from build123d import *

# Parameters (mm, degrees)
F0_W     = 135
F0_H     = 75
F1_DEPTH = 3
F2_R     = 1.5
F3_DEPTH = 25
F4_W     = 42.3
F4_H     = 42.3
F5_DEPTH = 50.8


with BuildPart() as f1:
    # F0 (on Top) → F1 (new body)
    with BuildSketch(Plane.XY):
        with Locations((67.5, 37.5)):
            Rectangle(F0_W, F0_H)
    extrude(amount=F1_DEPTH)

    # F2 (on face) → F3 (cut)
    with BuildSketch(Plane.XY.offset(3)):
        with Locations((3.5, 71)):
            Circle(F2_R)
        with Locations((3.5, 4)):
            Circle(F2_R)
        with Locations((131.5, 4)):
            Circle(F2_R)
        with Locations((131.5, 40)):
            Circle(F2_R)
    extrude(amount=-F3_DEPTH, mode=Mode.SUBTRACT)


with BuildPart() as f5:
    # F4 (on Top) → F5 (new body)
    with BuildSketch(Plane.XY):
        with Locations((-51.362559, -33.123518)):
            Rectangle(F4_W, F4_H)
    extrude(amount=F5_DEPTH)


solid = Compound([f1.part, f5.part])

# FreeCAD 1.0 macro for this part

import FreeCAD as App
import Part
import Sketcher
from FreeCAD import Vector


def add_polygon(sketch, points):
    """Adds a closed chain of lines whose ends are joined by coincident constraints."""
    first, n = sketch.GeometryCount, len(points)
    for a, b in zip(points, points[1:] + points[:1]):
        sketch.addGeometry(Part.LineSegment(App.Vector(*a, 0), App.Vector(*b, 0)), False)
    for i in range(n):
        sketch.addConstraint(Sketcher.Constraint("Coincident", first + i, 2, first + (i + 1) % n, 1))

doc = App.newDocument("Part")
body = doc.addObject("PartDesign::Body", "Body")

sketch1 = doc.addObject("Sketcher::SketchObject", "Sketch")
body.addObject(sketch1)
sketch1.AttachmentSupport = (doc.XY_Plane, [""])
sketch1.MapMode = "FlatFace"
add_polygon(sketch1, [(0, 75), (0, 0), (135, 0), (135, 75)])
sketch1.addConstraint(Sketcher.Constraint("Vertical", 0))
sketch1.addConstraint(Sketcher.Constraint("Horizontal", 1))
sketch1.addConstraint(Sketcher.Constraint("Vertical", 2))
sketch1.addConstraint(Sketcher.Constraint("Horizontal", 3))
sketch1.addConstraint(Sketcher.Constraint("Coincident", 0, 2, -1, 1))
sketch1.addConstraint(Sketcher.Constraint("DistanceX", 1, 1, 1, 2, 135.0))
sketch1.addConstraint(Sketcher.Constraint("DistanceY", 0, 2, 0, 1, 75.0))
pad1 = doc.addObject("PartDesign::Pad", "Pad")
body.addObject(pad1)
pad1.Profile = sketch1
pad1.Length = 3

sketch2 = doc.addObject("Sketcher::SketchObject", "Sketch001")
body.addObject(sketch2)
sketch2.AttachmentSupport = (doc.XY_Plane, [""])
sketch2.MapMode = "FlatFace"
sketch2.AttachmentOffset = App.Placement(Vector(0, 0, 3), App.Rotation())
sketch2.addGeometry(Part.Circle(Vector(3.5, 71, 0), Vector(0, 0, 1), 1.5), False)
sketch2.addGeometry(Part.Circle(Vector(3.5, 4, 0), Vector(0, 0, 1), 1.5), False)
sketch2.addGeometry(Part.Circle(Vector(131.5, 4, 0), Vector(0, 0, 1), 1.5), False)
sketch2.addGeometry(Part.Circle(Vector(131.5, 40, 0), Vector(0, 0, 1), 1.5), False)
sketch2.addConstraint(Sketcher.Constraint("Equal", 0, 1))
sketch2.addConstraint(Sketcher.Constraint("Equal", 1, 2))
sketch2.addConstraint(Sketcher.Constraint("Equal", 2, 3))
sketch2.addConstraint(Sketcher.Constraint("Horizontal", 1, 3, 2, 3))
sketch2.addConstraint(Sketcher.Constraint("Vertical", 0, 3, 1, 3))
sketch2.addConstraint(Sketcher.Constraint("Vertical", 2, 3, 3, 3))
sketch2.addConstraint(Sketcher.Constraint("Diameter", 0, 3.0))
sketch2.addConstraint(Sketcher.Constraint("DistanceY", -1, 1, 0, 3, 71.0))
sketch2.addConstraint(Sketcher.Constraint("DistanceY", -1, 1, 1, 3, 4.0))
sketch2.addConstraint(Sketcher.Constraint("DistanceY", -1, 1, 3, 3, 40.0))
sketch2.addConstraint(Sketcher.Constraint("DistanceX", 1, 3, 2, 3, 128.0))
sketch2.addConstraint(Sketcher.Constraint("DistanceX", -1, 1, 0, 3, 3.5))
pocket1 = doc.addObject("PartDesign::Pocket", "Pocket")
body.addObject(pocket1)
pocket1.Profile = sketch2
pocket1.Length = 25
body2 = doc.addObject("PartDesign::Body", "Body001")

sketch3 = doc.addObject("Sketcher::SketchObject", "Sketch002")
body2.addObject(sketch3)
sketch3.AttachmentSupport = (doc.getObject("XY_Plane001"), [""])
sketch3.MapMode = "FlatFace"
add_polygon(sketch3, [(-72.512559, -11.973518), (-72.512559, -54.273518), (-30.212559, -54.273518), (-30.212559, -11.973518)])
sketch3.addConstraint(Sketcher.Constraint("Vertical", 0))
sketch3.addConstraint(Sketcher.Constraint("Horizontal", 1))
sketch3.addConstraint(Sketcher.Constraint("Vertical", 2))
sketch3.addConstraint(Sketcher.Constraint("Horizontal", 3))
sketch3.addConstraint(Sketcher.Constraint("Equal", 3, 0))
sketch3.addConstraint(Sketcher.Constraint("DistanceX", 1, 1, 1, 2, 42.3))
sketch3.addConstraint(Sketcher.Constraint("DistanceX", 0, 2, -1, 1, 72.512559))
sketch3.addConstraint(Sketcher.Constraint("DistanceY", 0, 2, -1, 1, 54.273518))
pad2 = doc.addObject("PartDesign::Pad", "Pad001")
body2.addObject(pad2)
pad2.Profile = sketch3
pad2.Length = 50.8

doc.recompute()
